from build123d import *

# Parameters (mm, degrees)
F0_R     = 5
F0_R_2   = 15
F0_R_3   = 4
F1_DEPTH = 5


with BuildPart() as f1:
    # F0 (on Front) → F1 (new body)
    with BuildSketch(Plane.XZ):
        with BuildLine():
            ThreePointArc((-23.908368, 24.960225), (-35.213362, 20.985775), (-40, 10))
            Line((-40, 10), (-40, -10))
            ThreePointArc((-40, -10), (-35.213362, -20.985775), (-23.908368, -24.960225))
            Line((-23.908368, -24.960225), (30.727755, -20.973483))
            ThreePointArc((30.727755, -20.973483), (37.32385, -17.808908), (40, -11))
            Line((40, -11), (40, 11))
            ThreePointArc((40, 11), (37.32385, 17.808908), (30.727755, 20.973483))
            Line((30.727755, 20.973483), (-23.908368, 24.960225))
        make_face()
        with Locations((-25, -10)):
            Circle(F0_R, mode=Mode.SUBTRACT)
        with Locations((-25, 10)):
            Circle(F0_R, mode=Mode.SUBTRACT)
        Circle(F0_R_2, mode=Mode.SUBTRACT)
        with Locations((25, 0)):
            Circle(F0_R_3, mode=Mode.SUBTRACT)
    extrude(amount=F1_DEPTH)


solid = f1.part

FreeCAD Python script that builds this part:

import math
import FreeCAD as App
import Part
import Sketcher
from FreeCAD import Vector

doc = App.newDocument("Part")
body = doc.addObject("PartDesign::Body", "Body")

sketch1 = doc.addObject("Sketcher::SketchObject", "Sketch")
body.addObject(sketch1)
sketch1.AttachmentSupport = (doc.XZ_Plane, [""])
sketch1.MapMode = "FlatFace"
sketch1.addGeometry([
    Part.ArcOfCircle(Part.Circle(Vector(-25, 10, 0), Vector(0, 0, 1), 15), math.radians(86), math.radians(180)),
    Part.LineSegment(Vector(-40, 10, 0), Vector(-40, -10, 0)),
    Part.ArcOfCircle(Part.Circle(Vector(-25, -10, 0), Vector(0, 0, 1), 15), math.radians(180), math.radians(274)),
    Part.LineSegment(Vector(-23.9, -25, 0), Vector(30.7, -21, 0)),
    Part.ArcOfCircle(Part.Circle(Vector(30, -11, 0), Vector(0, 0, 1), 10), math.radians(-86), math.radians(0)),
    Part.LineSegment(Vector(40, -11, 0), Vector(40, 11, 0)),
    Part.ArcOfCircle(Part.Circle(Vector(30, 11, 0), Vector(0, 0, 1), 10), math.radians(0), math.radians(86)),
    Part.LineSegment(Vector(30.7, 21, 0), Vector(-23.9, 25, 0)),
    Part.Circle(Vector(-25, -10, 0), Vector(0, 0, 1), 5),
    Part.Circle(Vector(-25, 10, 0), Vector(0, 0, 1), 5),
    Part.Circle(Vector(0, 0, 0), Vector(0, 0, 1), 15),
    Part.Circle(Vector(25, 0, 0), Vector(0, 0, 1), 4),
], False)
sketch1.addConstraint([
    Sketcher.Constraint("Tangent", 0, 2, 1, 1),
    Sketcher.Constraint("Tangent", 1, 2, 2, 1),
    Sketcher.Constraint("Tangent", 2, 2, 3, 1),
    Sketcher.Constraint("Tangent", 3, 2, 4, 1),
    Sketcher.Constraint("Tangent", 4, 2, 5, 1),
    Sketcher.Constraint("Tangent", 5, 2, 6, 1),
    Sketcher.Constraint("Tangent", 6, 2, 7, 1),
    Sketcher.Constraint("Tangent", 7, 2, 0, 1),
    Sketcher.Constraint("Vertical", 1),
    Sketcher.Constraint("Vertical", 5),
    Sketcher.Constraint("Coincident", 10, 3, -1, 1),
    Sketcher.Constraint("Coincident", 8, 3, 2, 3),
    Sketcher.Constraint("Coincident", 9, 3, 0, 3),
    Sketcher.Constraint("Equal", 0, 2),
    Sketcher.Constraint("Equal", 4, 6),
    Sketcher.Constraint("Equal", 8, 9),
    Sketcher.Constraint("Equal", 2, 10),
    Sketcher.Constraint("Symmetric", 3, 2, 6, 2, -1),
    Sketcher.Constraint("PointOnObject", 11, 3, -1),
    Sketcher.Constraint("Diameter", 8, 10.0),
    Sketcher.Constraint("Diameter", 10, 30.0),
    Sketcher.Constraint("Diameter", 11, 8.0),
    Sketcher.Constraint("Radius", 4, 9.999998),
    Sketcher.Constraint("DistanceY", 1, 2, 1, 1, 20.0),
    Sketcher.Constraint("DistanceY", 5, 1, 5, 2, 22.0),
    Sketcher.Constraint("DistanceX", 0, 3, -1, 1, 25.000002),
    Sketcher.Constraint("DistanceX", -1, 1, 4, 3, 30.000002),
    Sketcher.Constraint("DistanceX", -1, 1, 11, 3, 25.0),
])
pad1 = doc.addObject("PartDesign::Pad", "Pad")
body.addObject(pad1)
pad1.Profile = sketch1
pad1.Length = 5

doc.recompute()
